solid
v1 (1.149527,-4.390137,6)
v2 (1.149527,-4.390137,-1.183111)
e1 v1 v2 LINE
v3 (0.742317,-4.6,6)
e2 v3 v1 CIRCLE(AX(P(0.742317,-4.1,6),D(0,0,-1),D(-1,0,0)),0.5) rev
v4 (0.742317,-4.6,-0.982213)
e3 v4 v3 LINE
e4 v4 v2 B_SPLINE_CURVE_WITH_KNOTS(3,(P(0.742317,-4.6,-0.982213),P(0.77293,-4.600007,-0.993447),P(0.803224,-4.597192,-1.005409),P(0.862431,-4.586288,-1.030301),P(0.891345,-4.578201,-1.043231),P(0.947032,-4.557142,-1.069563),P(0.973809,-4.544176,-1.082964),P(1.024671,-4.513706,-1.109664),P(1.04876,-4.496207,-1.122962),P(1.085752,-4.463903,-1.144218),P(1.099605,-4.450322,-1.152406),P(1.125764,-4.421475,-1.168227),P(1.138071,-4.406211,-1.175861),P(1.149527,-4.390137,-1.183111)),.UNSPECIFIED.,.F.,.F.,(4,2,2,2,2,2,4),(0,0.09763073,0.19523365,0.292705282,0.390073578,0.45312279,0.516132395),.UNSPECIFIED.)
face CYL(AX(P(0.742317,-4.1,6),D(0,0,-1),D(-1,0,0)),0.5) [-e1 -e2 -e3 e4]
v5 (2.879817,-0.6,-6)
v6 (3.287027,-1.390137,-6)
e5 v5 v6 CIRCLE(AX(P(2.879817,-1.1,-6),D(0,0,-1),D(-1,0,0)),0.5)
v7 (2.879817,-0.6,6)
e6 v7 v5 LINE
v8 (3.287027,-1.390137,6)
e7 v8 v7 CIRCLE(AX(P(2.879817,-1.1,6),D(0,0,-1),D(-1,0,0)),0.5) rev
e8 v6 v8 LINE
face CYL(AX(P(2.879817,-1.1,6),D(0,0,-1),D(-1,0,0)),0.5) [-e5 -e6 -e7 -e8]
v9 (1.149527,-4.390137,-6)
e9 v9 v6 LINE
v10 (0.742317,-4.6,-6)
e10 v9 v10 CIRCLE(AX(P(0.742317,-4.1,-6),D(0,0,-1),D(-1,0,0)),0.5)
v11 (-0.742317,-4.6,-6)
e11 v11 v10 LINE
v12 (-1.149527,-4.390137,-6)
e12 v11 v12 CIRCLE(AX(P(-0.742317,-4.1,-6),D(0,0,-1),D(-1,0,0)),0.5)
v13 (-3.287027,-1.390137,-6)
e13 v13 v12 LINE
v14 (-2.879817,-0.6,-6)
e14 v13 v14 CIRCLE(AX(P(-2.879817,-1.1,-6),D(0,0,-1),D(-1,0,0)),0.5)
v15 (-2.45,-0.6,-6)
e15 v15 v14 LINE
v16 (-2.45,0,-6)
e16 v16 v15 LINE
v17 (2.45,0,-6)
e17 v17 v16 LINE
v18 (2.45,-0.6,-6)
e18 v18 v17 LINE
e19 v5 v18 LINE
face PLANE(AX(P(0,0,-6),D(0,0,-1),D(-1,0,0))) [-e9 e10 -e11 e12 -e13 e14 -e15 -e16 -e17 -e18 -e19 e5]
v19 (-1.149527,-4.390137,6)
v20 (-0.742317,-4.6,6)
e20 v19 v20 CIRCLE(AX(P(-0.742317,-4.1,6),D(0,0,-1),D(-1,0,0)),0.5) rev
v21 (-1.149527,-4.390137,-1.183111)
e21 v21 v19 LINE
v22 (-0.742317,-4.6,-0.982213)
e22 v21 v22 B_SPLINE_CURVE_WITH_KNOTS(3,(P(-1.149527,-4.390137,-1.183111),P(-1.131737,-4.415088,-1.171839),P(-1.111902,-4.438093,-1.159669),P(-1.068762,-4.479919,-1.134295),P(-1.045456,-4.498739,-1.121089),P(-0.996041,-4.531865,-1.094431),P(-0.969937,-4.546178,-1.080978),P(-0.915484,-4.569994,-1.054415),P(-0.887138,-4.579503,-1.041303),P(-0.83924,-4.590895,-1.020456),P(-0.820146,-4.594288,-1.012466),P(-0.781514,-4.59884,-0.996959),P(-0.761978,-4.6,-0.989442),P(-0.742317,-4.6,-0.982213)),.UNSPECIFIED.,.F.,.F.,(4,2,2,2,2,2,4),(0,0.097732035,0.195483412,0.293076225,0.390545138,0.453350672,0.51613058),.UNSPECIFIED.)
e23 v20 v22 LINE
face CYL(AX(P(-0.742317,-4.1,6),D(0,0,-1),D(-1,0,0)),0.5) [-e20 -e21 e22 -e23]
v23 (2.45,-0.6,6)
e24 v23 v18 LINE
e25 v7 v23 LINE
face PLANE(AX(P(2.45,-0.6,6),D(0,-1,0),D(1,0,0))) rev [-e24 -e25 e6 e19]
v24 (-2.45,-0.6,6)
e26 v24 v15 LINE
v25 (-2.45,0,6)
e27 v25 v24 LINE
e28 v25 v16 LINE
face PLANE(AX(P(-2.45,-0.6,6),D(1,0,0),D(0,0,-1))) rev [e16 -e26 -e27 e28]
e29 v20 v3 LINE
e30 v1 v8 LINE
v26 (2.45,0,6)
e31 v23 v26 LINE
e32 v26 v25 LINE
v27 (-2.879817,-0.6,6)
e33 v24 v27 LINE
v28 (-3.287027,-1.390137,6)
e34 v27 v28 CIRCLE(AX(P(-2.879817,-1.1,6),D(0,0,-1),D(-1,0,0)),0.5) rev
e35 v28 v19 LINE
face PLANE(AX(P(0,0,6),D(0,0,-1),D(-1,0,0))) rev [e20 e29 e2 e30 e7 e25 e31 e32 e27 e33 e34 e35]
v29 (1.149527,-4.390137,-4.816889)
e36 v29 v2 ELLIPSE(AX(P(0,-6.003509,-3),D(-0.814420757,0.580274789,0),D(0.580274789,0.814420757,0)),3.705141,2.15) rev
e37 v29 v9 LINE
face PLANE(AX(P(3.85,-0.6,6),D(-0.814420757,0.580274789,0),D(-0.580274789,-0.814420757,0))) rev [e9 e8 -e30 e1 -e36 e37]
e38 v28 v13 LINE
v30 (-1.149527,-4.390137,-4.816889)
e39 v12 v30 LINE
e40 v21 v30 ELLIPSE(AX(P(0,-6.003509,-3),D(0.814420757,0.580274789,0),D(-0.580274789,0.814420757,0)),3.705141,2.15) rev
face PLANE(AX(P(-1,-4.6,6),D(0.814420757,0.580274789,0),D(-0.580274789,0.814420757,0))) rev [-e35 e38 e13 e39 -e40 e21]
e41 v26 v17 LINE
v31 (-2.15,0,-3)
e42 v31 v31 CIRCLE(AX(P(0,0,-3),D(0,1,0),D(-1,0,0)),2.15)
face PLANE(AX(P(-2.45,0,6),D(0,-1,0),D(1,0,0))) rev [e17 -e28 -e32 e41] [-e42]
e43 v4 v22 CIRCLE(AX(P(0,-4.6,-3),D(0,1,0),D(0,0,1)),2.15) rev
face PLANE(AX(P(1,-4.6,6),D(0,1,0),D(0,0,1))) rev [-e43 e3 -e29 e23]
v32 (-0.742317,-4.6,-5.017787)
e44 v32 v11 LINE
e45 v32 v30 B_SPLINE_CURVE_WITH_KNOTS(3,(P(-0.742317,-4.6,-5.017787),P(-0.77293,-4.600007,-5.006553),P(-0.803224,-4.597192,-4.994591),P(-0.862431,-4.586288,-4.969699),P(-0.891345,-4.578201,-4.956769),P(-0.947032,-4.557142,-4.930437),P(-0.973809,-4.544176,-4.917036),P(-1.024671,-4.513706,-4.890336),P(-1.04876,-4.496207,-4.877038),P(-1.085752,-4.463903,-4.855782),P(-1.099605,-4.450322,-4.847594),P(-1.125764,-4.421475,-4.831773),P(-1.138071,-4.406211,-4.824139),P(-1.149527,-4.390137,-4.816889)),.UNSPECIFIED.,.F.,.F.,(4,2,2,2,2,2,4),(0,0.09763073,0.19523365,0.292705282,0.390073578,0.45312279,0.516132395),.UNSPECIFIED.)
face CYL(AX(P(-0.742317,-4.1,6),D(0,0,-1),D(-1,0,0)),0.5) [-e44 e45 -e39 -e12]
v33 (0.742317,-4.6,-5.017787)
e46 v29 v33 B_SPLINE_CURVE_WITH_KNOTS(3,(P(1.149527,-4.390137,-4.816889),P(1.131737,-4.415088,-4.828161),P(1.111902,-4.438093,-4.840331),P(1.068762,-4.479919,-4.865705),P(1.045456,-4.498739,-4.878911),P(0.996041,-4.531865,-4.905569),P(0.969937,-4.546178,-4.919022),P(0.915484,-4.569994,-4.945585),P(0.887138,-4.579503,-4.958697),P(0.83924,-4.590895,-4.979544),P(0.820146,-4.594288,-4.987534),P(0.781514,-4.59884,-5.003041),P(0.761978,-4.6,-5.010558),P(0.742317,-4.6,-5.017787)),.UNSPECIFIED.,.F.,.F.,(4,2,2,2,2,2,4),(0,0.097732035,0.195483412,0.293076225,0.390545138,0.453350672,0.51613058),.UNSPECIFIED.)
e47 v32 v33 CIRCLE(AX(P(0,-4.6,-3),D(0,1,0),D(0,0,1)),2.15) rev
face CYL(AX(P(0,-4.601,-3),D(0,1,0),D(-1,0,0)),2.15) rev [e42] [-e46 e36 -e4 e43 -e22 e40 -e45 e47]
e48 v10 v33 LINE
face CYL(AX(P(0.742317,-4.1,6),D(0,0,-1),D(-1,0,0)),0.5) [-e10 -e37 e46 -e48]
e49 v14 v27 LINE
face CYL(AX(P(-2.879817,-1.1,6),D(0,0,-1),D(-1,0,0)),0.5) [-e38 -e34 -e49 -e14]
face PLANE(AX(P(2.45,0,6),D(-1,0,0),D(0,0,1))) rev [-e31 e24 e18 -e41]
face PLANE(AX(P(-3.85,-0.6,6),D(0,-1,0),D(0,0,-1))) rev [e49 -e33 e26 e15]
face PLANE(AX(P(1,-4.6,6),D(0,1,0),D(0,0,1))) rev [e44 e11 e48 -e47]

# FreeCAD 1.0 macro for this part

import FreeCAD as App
import Part
import Sketcher
from FreeCAD import Vector
Q = App.Units.Quantity


def edges_at(feature, points):
    """Names of the edges that pass closest to the given points."""
    edges = feature.Shape.Edges
    near = lambda p: min(range(len(edges)), key=lambda i: edges[i].distToShape(Part.Vertex(*p))[0])
    return sorted({f"Edge{near(p) + 1}" for p in points})


def add_polygon(sketch, points):
    """Adds a closed chain of lines whose ends are joined by coincident constraints."""
    first, n = sketch.GeometryCount, len(points)
    for a, b in zip(points, points[1:] + points[:1]):
        sketch.addGeometry(Part.LineSegment(App.Vector(*a, 0), App.Vector(*b, 0)), False)
    for i in range(n):
        sketch.addConstraint(Sketcher.Constraint("Coincident", first + i, 2, first + (i + 1) % n, 1))

doc = App.newDocument("Part")
body = doc.addObject("PartDesign::Body", "Body")

# Sketch on XY plane
sketch1 = body.newObject("Sketcher::SketchObject", "Sketch")
sketch1.AttachmentSupport = (doc.getObject("XY_Plane"), [""])
sketch1.MapMode = "FlatFace"
add_polygon(sketch1, [(2.5, 0), (-2.5, 0), (-2.5, -0.6), (-3.9, -0.6), (-1, -4.6), (1, -4.6), (3.9, -0.6), (2.5, -0.6)])  # lines 0-7
sketch1.addConstraint([
    Sketcher.Constraint("Horizontal", 0),
    Sketcher.Constraint("Vertical", 1),
    Sketcher.Constraint("Horizontal", 2),
    Sketcher.Constraint("Horizontal", 4),
    Sketcher.Constraint("Horizontal", 6),
    Sketcher.Constraint("Vertical", 7),
    Sketcher.Constraint("Symmetric", 0, 2, 7, 2, -1, 1),
    Sketcher.Constraint("Symmetric", 2, 2, 5, 2, -2),
    Sketcher.Constraint("Equal", 3, 5),
    Sketcher.Constraint("DistanceX", 4, 1, 4, 2, Q("2 mm")),
    Sketcher.Constraint("DistanceX", 0, 2, 0, 1, Q("4.9 mm")),
    Sketcher.Constraint("DistanceX", 2, 2, 2, 1, Q("1.4 mm")),
    Sketcher.Constraint("DistanceY", 1, 2, 1, 1, Q("0.6 mm")),
    Sketcher.Constraint("DistanceY", 3, 2, 1, 2, Q("4 mm")),
])
pad1 = body.newObject("PartDesign::Pad", "Pad")
pad1.Profile = sketch1
pad1.Length = 12
pad1.Midplane = True
doc.recompute()

fillet = body.newObject("PartDesign::Fillet", "Fillet")
fillet.Base = (pad1, edges_at(pad1, [
    (3.85, -0.6, 0),
    (1, -4.6, 0),
    (-1, -4.6, 0),
    (-3.85, -0.6, 0),
]))
fillet.Radius = 0.5

# Sketch on XZ plane
sketch2 = body.newObject("Sketcher::SketchObject", "Sketch001")
sketch2.AttachmentSupport = (doc.getObject("XZ_Plane"), [""])
sketch2.MapMode = "FlatFace"
sketch2.addGeometry(Part.Circle(Vector(0, -3, 0), Vector(0, 0, 1), 2.1), False)
sketch2.addConstraint([
    Sketcher.Constraint("PointOnObject", 0, 3, -2),
    Sketcher.Constraint("Diameter", 0, Q("4.3 mm")),
    Sketcher.Constraint("DistanceY", 0, 3, -1, 1, Q("3 mm")),
])
pocket1 = body.newObject("PartDesign::Pocket", "Pocket")
pocket1.Profile = sketch2
pocket1.Type = "UpToFirst"
pocket1.Reversed = True

doc.recompute()
